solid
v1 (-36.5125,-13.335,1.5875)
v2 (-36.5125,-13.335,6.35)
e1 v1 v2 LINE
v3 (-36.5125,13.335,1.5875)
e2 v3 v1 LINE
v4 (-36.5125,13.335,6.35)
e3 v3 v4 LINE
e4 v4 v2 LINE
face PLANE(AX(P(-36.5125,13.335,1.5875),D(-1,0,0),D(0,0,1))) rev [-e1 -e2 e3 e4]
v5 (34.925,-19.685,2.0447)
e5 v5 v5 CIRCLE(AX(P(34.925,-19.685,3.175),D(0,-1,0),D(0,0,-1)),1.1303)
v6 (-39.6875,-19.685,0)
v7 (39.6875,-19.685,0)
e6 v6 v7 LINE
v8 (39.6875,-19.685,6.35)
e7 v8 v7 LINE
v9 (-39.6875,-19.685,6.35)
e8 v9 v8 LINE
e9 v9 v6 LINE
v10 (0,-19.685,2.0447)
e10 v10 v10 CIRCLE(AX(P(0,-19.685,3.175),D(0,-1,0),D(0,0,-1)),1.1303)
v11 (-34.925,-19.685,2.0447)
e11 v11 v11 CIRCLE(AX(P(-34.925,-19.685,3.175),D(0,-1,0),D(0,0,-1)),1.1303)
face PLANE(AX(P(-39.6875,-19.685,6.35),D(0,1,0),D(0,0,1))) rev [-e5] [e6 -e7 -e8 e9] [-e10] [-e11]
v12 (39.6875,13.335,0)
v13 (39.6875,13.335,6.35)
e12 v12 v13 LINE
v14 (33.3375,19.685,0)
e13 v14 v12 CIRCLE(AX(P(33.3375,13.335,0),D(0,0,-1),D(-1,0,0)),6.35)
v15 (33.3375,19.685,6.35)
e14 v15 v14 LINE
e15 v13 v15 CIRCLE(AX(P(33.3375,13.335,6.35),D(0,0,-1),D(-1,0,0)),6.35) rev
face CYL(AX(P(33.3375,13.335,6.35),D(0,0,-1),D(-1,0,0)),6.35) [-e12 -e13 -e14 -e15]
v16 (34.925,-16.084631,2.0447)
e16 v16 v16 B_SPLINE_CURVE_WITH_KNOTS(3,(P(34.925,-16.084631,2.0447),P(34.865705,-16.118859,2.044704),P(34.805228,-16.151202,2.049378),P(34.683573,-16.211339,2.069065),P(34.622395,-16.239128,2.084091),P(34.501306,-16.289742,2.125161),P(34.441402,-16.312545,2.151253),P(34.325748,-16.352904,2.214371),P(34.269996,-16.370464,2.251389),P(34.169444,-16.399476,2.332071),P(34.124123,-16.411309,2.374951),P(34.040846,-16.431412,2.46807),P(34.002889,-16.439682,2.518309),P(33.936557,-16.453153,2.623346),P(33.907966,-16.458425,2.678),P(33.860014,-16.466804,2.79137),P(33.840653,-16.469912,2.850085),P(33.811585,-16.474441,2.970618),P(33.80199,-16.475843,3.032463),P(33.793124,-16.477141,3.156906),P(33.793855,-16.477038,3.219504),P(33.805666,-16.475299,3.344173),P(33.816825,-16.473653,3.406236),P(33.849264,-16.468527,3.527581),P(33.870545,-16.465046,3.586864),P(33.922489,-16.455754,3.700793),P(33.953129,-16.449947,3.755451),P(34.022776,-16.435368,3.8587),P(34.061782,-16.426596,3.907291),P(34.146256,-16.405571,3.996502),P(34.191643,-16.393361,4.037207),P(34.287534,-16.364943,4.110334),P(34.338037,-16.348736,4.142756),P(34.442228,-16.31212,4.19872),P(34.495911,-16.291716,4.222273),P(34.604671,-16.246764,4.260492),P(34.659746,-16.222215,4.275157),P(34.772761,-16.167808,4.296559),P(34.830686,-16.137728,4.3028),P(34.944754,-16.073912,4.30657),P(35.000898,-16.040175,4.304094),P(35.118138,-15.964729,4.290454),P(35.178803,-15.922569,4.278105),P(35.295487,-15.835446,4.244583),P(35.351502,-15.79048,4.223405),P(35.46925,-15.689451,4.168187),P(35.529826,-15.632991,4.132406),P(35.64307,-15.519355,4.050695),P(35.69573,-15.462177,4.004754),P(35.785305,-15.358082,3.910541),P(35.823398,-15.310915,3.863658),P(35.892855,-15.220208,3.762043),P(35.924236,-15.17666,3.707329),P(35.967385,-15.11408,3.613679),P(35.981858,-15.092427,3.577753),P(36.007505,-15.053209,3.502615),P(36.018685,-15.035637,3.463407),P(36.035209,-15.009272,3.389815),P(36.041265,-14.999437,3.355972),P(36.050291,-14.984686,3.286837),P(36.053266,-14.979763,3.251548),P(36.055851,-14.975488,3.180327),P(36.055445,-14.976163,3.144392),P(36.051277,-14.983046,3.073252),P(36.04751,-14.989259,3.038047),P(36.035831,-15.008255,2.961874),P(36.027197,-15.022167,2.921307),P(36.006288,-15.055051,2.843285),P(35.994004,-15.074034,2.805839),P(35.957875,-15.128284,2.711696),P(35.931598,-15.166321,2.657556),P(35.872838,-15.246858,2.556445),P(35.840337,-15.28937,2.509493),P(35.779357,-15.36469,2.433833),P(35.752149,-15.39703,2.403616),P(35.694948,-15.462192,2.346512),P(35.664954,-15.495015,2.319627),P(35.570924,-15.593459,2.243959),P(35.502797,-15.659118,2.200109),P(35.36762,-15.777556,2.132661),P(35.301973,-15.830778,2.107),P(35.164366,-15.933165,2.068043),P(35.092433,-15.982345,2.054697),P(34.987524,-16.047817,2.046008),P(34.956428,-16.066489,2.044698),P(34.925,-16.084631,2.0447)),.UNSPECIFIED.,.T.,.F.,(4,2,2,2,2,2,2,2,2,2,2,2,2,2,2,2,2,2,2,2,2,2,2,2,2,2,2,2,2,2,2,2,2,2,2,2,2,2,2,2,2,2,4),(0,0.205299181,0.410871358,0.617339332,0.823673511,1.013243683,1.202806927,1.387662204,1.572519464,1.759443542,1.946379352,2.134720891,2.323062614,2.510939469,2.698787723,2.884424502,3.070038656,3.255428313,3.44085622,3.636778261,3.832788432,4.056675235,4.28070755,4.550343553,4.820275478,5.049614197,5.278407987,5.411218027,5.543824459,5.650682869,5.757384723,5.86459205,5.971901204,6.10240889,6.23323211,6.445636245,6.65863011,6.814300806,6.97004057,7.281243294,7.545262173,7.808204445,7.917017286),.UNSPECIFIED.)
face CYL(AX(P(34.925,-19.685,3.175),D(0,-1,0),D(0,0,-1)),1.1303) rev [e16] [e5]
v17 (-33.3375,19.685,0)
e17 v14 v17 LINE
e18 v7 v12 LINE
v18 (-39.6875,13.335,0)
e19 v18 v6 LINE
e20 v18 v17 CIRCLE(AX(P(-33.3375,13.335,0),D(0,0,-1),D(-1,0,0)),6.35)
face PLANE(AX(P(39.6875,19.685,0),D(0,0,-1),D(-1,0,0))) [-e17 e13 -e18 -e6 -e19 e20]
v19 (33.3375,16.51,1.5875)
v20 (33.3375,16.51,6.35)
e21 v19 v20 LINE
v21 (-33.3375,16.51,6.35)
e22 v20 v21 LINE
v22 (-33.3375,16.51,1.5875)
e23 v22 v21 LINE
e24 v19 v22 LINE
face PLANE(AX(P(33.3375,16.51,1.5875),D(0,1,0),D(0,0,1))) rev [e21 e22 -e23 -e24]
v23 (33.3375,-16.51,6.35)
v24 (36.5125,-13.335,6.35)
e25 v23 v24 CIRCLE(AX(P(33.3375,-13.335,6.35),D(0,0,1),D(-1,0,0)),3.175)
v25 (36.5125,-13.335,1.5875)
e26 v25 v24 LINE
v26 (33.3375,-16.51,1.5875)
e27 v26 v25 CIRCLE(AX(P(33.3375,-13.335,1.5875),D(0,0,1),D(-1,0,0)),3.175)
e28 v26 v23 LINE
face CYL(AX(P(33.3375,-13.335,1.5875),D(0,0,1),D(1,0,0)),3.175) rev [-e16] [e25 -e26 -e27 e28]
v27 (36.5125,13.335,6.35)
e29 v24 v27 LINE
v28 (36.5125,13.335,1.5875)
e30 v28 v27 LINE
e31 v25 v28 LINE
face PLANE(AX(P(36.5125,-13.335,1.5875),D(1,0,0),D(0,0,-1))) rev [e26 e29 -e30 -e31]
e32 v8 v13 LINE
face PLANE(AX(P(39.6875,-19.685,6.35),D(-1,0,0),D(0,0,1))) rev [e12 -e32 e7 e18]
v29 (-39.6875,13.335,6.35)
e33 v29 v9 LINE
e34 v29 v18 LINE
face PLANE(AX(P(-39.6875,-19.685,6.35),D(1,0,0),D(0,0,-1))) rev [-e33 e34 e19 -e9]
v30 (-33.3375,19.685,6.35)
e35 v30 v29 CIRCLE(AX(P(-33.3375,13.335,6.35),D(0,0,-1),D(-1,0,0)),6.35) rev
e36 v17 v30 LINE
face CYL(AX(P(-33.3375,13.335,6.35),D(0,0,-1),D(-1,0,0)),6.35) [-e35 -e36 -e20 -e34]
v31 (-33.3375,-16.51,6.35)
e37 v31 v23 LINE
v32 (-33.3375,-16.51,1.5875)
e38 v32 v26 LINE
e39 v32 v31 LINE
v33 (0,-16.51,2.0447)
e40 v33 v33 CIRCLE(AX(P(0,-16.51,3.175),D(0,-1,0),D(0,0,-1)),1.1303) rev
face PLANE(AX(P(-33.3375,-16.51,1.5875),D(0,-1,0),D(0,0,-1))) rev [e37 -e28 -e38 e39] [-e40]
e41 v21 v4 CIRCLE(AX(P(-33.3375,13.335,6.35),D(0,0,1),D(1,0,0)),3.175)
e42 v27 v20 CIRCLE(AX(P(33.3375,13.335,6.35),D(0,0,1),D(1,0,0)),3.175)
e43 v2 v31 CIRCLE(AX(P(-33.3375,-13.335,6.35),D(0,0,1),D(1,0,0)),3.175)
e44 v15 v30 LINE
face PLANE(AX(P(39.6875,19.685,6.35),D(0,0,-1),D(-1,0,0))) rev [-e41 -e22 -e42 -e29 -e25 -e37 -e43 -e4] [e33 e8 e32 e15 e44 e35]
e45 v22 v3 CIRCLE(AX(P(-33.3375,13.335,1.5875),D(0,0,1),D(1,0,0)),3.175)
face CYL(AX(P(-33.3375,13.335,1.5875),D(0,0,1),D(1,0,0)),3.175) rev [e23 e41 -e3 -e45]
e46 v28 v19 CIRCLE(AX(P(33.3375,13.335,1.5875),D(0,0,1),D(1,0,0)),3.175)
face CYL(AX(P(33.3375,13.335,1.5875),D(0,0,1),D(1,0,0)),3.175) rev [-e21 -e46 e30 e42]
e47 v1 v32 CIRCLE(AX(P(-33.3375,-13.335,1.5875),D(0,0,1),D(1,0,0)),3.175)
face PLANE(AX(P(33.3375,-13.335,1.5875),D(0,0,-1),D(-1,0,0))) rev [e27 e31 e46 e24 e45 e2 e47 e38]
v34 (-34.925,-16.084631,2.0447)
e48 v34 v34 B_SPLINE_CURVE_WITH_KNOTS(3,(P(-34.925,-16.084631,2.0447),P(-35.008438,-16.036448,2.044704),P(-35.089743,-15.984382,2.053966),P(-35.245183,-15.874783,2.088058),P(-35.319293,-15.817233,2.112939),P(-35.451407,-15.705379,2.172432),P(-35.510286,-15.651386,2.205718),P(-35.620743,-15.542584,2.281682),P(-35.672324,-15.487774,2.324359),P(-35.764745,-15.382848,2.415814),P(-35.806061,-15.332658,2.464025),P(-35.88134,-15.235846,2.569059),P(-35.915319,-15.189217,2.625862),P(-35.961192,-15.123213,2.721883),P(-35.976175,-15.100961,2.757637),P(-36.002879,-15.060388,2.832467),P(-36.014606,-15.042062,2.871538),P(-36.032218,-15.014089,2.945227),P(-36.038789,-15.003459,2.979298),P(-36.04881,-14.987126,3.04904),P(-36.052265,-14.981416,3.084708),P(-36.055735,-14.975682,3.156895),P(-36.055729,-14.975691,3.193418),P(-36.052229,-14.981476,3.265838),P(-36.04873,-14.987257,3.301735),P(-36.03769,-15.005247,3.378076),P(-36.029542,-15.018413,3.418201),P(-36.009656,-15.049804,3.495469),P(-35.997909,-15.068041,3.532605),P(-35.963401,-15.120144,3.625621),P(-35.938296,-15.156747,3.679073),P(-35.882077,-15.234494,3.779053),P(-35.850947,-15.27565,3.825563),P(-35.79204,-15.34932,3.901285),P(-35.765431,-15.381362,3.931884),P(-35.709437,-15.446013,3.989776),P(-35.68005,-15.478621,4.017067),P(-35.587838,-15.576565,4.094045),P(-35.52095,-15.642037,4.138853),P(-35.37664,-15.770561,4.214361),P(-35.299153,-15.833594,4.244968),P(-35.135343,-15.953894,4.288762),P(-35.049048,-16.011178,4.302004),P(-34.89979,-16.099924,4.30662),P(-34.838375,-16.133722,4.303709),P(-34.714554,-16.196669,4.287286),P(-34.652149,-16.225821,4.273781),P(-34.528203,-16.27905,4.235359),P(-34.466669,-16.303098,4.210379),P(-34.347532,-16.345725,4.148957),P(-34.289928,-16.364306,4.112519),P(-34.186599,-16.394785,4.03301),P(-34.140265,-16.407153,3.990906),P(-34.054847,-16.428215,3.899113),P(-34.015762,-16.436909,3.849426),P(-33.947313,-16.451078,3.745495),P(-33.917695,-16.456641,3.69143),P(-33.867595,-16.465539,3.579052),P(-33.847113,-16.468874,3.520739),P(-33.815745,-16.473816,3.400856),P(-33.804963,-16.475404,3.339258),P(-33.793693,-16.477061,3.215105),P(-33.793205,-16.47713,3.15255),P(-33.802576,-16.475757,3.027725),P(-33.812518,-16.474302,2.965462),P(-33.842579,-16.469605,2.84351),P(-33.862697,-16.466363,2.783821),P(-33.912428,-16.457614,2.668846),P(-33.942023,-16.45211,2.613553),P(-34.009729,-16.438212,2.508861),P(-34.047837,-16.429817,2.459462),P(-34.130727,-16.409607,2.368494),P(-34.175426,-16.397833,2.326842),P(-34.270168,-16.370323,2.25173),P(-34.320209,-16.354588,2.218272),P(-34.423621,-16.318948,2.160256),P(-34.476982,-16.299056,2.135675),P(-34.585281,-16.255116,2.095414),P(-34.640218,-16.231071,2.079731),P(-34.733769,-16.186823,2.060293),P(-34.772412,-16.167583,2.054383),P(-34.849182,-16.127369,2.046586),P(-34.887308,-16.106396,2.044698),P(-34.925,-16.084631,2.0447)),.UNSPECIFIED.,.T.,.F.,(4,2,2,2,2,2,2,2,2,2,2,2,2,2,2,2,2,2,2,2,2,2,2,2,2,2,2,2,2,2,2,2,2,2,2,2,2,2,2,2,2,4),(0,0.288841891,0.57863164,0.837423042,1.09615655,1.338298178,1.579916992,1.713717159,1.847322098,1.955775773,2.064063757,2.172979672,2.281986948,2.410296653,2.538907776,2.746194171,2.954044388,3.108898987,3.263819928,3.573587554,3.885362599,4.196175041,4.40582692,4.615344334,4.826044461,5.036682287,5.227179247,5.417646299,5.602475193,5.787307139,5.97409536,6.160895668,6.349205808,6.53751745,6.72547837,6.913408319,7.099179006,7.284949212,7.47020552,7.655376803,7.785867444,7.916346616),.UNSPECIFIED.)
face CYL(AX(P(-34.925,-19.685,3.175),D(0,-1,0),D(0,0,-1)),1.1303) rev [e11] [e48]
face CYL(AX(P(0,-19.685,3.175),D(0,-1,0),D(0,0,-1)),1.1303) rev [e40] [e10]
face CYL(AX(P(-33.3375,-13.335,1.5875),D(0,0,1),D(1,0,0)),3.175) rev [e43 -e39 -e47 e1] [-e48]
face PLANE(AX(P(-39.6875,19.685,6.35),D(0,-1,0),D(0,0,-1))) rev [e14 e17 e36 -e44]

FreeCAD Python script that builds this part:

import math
import FreeCAD as App
import Part
import Sketcher
from FreeCAD import Vector
Q = App.Units.Quantity


def edges_at(feature, points):
    """Names of the edges that pass closest to the given points."""
    edges = feature.Shape.Edges
    near = lambda p: min(range(len(edges)), key=lambda i: edges[i].distToShape(Part.Vertex(*p))[0])
    return sorted({f"Edge{near(p) + 1}" for p in points})


def add_polygon(sketch, points):
    """Adds a closed chain of lines whose ends are joined by coincident constraints."""
    first, n = sketch.GeometryCount, len(points)
    for a, b in zip(points, points[1:] + points[:1]):
        sketch.addGeometry(Part.LineSegment(App.Vector(*a, 0), App.Vector(*b, 0)), False)
    for i in range(n):
        sketch.addConstraint(Sketcher.Constraint("Coincident", first + i, 2, first + (i + 1) % n, 1))

doc = App.newDocument("Part")
body = doc.addObject("PartDesign::Body", "Body")

sketch1 = doc.addObject("Sketcher::SketchObject", "Sketch")
body.addObject(sketch1)
sketch1.AttachmentSupport = (doc.XY_Plane, [""])
sketch1.MapMode = "FlatFace"
add_polygon(sketch1, [(-39.6875, 19.685), (-39.6875, -19.685), (39.6875, -19.685), (39.6875, 19.685)])
sketch1.addConstraint([
    Sketcher.Constraint("Vertical", 0),
    Sketcher.Constraint("Horizontal", 1),
    Sketcher.Constraint("Vertical", 2),
    Sketcher.Constraint("Horizontal", 3),
    Sketcher.Constraint("Symmetric", 0, 2, 2, 2, -1, 1),
    Sketcher.Constraint("DistanceY", 0, 2, 0, 1, Q("1.55 in")),
    Sketcher.Constraint("DistanceX", 1, 1, 1, 2, Q("3.125 in")),
])
pad1 = doc.addObject("PartDesign::Pad", "Pad")
body.addObject(pad1)
pad1.Profile = sketch1
pad1.Length = Q("0.25 in")
doc.recompute()

fillet = doc.addObject("PartDesign::Fillet", "Fillet")
body.addObject(fillet)
fillet.Base = (pad1, edges_at(pad1, [(-39.688, 19.685, 3.175), (39.688, 19.685, 3.175)]))
fillet.Radius = Q("0.25 in")

sketch2 = doc.addObject("Sketcher::SketchObject", "Sketch001")
body.addObject(sketch2)
sketch2.AttachmentSupport = (doc.XZ_Plane, [""])
sketch2.MapMode = "FlatFace"
sketch2.AttachmentOffset = App.Placement(Vector(0, 0, 0.775 * 25.4), App.Rotation())
sketch2.addGeometry([
    Part.Circle(Vector(0, 3.175, 0), Vector(0, 0, 1), 1.1303),
    Part.Circle(Vector(-34.925, 3.175, 0), Vector(0, 0, 1), 1.1303),
    Part.Circle(Vector(34.925, 3.175, 0), Vector(0, 0, 1), 1.1303),
], False)
sketch2.addConstraint([
    Sketcher.Constraint("Equal", 0, 1),
    Sketcher.Constraint("Equal", 1, 2),
    Sketcher.Constraint("Symmetric", 1, 3, 2, 3, -2),
    Sketcher.Constraint("PointOnObject", 0, 3, -2),
    Sketcher.Constraint("Horizontal", 0, 3, 1, 3),
    Sketcher.Constraint("Diameter", 0, Q("0.089 in")),
    Sketcher.Constraint("DistanceX", 1, 3, 2, 3, Q("2.75 in")),
    Sketcher.Constraint("DistanceY", -1, 1, 0, 3, Q("0.125 in")),
])
doc.recompute()
hole = doc.addObject("PartDesign::Hole", "Hole")
body.addObject(hole)
hole.Profile = sketch2
hole.ThreadType = "None"
hole.Diameter = Q("0.089 in")
hole.DepthType = "Dimension"
hole.Depth = Q("0.3 in")
hole.DrillPoint = "Angled"
hole.DrillPointAngle = 118

sketch3 = doc.addObject("Sketcher::SketchObject", "Sketch002")
body.addObject(sketch3)
sketch3.AttachmentSupport = (doc.XY_Plane, [""])
sketch3.MapMode = "FlatFace"
sketch3.AttachmentOffset = App.Placement(Vector(0, 0, 0.25 * 25.4), App.Rotation())
sketch3.addGeometry([
    Part.LineSegment(Vector(36.5125, -13.335, 0), Vector(36.5125, 13.335, 0)),
    Part.ArcOfCircle(Part.Circle(Vector(33.3375, 13.335, 0), Vector(0, 0, 1), 3.175), math.radians(0), math.radians(90)),
    Part.LineSegment(Vector(33.3375, 16.51, 0), Vector(-33.3375, 16.51, 0)),
    Part.ArcOfCircle(Part.Circle(Vector(-33.3375, 13.335, 0), Vector(0, 0, 1), 3.175), math.radians(90), math.radians(180)),
    Part.LineSegment(Vector(-36.5125, 13.335, 0), Vector(-36.5125, -13.335, 0)),
    Part.ArcOfCircle(Part.Circle(Vector(-33.3375, -13.335, 0), Vector(0, 0, 1), 3.175), math.radians(-180), math.radians(-90)),
    Part.LineSegment(Vector(-33.3375, -16.51, 0), Vector(33.3375, -16.51, 0)),
    Part.ArcOfCircle(Part.Circle(Vector(33.3375, -13.335, 0), Vector(0, 0, 1), 3.175), math.radians(-90), math.radians(0)),
], False)
sketch3.addConstraint([
    Sketcher.Constraint("Tangent", 0, 2, 1, 1),
    Sketcher.Constraint("Tangent", 1, 2, 2, 1),
    Sketcher.Constraint("Tangent", 2, 2, 3, 1),
    Sketcher.Constraint("Tangent", 3, 2, 4, 1),
    Sketcher.Constraint("Tangent", 4, 2, 5, 1),
    Sketcher.Constraint("Tangent", 5, 2, 6, 1),
    Sketcher.Constraint("Tangent", 6, 2, 7, 1),
    Sketcher.Constraint("Tangent", 7, 2, 0, 1),
    Sketcher.Constraint("Vertical", 0),
    Sketcher.Constraint("Horizontal", 2),
    Sketcher.Constraint("Vertical", 4),
    Sketcher.Constraint("Horizontal", 6),
    Sketcher.Constraint("Equal", 1, 3),
    Sketcher.Constraint("Equal", 3, 5),
    Sketcher.Constraint("Equal", 5, 7),
    Sketcher.Constraint("Symmetric", 1, 3, 5, 3, -1, 1),
    Sketcher.Constraint("Radius", 1, Q("0.125 in")),
    Sketcher.Constraint("DistanceY", 0, 1, 0, 2, Q("1.05 in")),
    Sketcher.Constraint("DistanceX", 2, 2, 2, 1, Q("2.625 in")),
])
pocket1 = doc.addObject("PartDesign::Pocket", "Pocket")
body.addObject(pocket1)
pocket1.Profile = sketch3
pocket1.Length = Q("0.1875 in")

doc.recompute()
